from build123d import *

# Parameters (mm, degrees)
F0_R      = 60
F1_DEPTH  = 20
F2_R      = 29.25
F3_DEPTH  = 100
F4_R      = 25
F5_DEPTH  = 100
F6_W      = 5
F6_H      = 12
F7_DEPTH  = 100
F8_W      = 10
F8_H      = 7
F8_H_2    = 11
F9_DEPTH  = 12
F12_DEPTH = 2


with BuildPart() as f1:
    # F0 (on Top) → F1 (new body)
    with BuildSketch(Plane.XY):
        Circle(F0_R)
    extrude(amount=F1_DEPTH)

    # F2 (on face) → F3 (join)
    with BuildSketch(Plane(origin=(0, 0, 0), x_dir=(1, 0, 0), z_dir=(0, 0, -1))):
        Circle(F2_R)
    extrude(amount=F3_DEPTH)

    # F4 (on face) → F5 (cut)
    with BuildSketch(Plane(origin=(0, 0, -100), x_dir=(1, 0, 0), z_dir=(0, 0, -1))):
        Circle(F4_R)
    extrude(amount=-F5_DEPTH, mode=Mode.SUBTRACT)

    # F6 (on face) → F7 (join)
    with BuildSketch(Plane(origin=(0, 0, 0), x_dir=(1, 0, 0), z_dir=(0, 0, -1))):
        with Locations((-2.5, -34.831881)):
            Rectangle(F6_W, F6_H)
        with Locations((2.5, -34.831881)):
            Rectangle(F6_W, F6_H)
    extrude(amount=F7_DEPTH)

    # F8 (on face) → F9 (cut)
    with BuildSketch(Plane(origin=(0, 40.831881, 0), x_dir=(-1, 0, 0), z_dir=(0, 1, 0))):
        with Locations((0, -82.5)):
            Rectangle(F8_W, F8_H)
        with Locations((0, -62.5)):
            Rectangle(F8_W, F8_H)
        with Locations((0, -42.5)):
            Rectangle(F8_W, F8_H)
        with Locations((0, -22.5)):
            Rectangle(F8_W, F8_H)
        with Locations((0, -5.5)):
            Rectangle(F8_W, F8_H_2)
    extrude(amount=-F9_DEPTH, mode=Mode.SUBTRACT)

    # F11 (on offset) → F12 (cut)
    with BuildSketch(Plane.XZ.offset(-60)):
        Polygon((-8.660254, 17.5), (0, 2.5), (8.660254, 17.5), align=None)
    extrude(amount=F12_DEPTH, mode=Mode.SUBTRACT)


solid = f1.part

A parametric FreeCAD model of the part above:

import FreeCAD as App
import Part
import Sketcher
Q = App.Units.Quantity


def add_polygon(sketch, points):
    """Adds a closed chain of lines whose ends are joined by coincident constraints."""
    first, n = sketch.GeometryCount, len(points)
    for a, b in zip(points, points[1:] + points[:1]):
        sketch.addGeometry(Part.LineSegment(App.Vector(*a, 0), App.Vector(*b, 0)), False)
    for i in range(n):
        sketch.addConstraint(Sketcher.Constraint("Coincident", first + i, 2, first + (i + 1) % n, 1))

doc = App.newDocument("Part")
body = doc.addObject("PartDesign::Body", "Body")

# Sketch on XY plane
sketch1 = doc.addObject("Sketcher::SketchObject", "Sketch")
body.addObject(sketch1)
sketch1.AttachmentSupport = (doc.XY_Plane, [""])
sketch1.MapMode = "FlatFace"
sketch1.addGeometry(Part.Circle(App.Vector(0, 0, 0), App.Vector(0, 0, 1), 60), False)
sketch1.addConstraint([
    Sketcher.Constraint("Coincident", 0, 3, -1, 1),
    Sketcher.Constraint("Diameter", 0, Q("120 mm")),
])
pad1 = doc.addObject("PartDesign::Pad", "Pad")
body.addObject(pad1)
pad1.Profile = sketch1
pad1.Length = 20

# Sketch on XY plane
sketch2 = doc.addObject("Sketcher::SketchObject", "Sketch001")
body.addObject(sketch2)
sketch2.AttachmentSupport = (doc.XY_Plane, [""])
sketch2.MapMode = "FlatFace"
sketch2.addGeometry(Part.Circle(App.Vector(0, 0, 0), App.Vector(0, 0, 1), 29), False)
sketch2.addConstraint([
    Sketcher.Constraint("Coincident", 0, 3, -1, 1),
    Sketcher.Constraint("Diameter", 0, Q("58.5 mm")),
])
pad2 = doc.addObject("PartDesign::Pad", "Pad001")
body.addObject(pad2)
pad2.Profile = sketch2
pad2.Length = 100
pad2.Reversed = True

# Sketch on XY plane
sketch3 = doc.addObject("Sketcher::SketchObject", "Sketch002")
body.addObject(sketch3)
sketch3.AttachmentSupport = (doc.XY_Plane, [""])
sketch3.MapMode = "FlatFace"
sketch3.AttachmentOffset = App.Placement(App.Vector(0, 0, -100), App.Rotation())
sketch3.addGeometry(Part.Circle(App.Vector(0, 0, 0), App.Vector(0, 0, 1), 25), False)
sketch3.addConstraint([
    Sketcher.Constraint("Coincident", 0, 3, -1, 1),
    Sketcher.Constraint("Diameter", 0, Q("50 mm")),
])
pocket1 = doc.addObject("PartDesign::Pocket", "Pocket")
body.addObject(pocket1)
pocket1.Profile = sketch3
pocket1.Length = 100
pocket1.Reversed = True

# Sketch on XY plane
sketch4 = doc.addObject("Sketcher::SketchObject", "Sketch003")
body.addObject(sketch4)
sketch4.AttachmentSupport = (doc.XY_Plane, [""])
sketch4.MapMode = "FlatFace"
add_polygon(sketch4, [(-5, 29), (-5, 41), (5, 41), (5, 29)])  # lines 0-3
sketch4.addConstraint([
    Sketcher.Constraint("Vertical", 0),
    Sketcher.Constraint("Horizontal", 1),
    Sketcher.Constraint("Vertical", 2),
    Sketcher.Constraint("Horizontal", 3),
    Sketcher.Constraint("DistanceX", 1, 1, 1, 2, Q("10 mm")),
    Sketcher.Constraint("DistanceY", 0, 1, 0, 2, Q("12 mm")),
    Sketcher.Constraint("DistanceX", 0, 2, -1, 1, Q("5 mm")),
    Sketcher.Constraint("DistanceY", -1, 1, 0, 2, Q("40.831881 mm")),
])
pad3 = doc.addObject("PartDesign::Pad", "Pad002")
body.addObject(pad3)
pad3.Profile = sketch4
pad3.Length = 100
pad3.Reversed = True

# Sketch on XZ plane
sketch5 = doc.addObject("Sketcher::SketchObject", "Sketch004")
body.addObject(sketch5)
sketch5.AttachmentSupport = (doc.XZ_Plane, [""])
sketch5.MapMode = "FlatFace"
sketch5.AttachmentOffset = App.Placement(App.Vector(0, 0, -40.831881), App.Rotation())
add_polygon(sketch5, [(5, -79), (5, -86), (-5, -86), (-5, -79)])  # lines 0-3
add_polygon(sketch5, [(5, -59), (5, -66), (-5, -66), (-5, -59)])  # lines 4-7
add_polygon(sketch5, [(5, -39), (5, -46), (-5, -46), (-5, -39)])  # lines 8-11
add_polygon(sketch5, [(5, -19), (5, -26), (-5, -26), (-5, -19)])  # lines 12-15
add_polygon(sketch5, [(5, 0), (5, -11), (-5, -11), (-5, 0)])  # lines 16-19
sketch5.addConstraint([
    Sketcher.Constraint("Vertical", 0),
    Sketcher.Constraint("Horizontal", 1),
    Sketcher.Constraint("Vertical", 2),
    Sketcher.Constraint("Horizontal", 3),
    Sketcher.Constraint("Vertical", 4),
    Sketcher.Constraint("Horizontal", 5),
    Sketcher.Constraint("Vertical", 6),
    Sketcher.Constraint("Horizontal", 7),
    Sketcher.Constraint("Vertical", 8),
    Sketcher.Constraint("Horizontal", 9),
    Sketcher.Constraint("Vertical", 10),
    Sketcher.Constraint("Horizontal", 11),
    Sketcher.Constraint("Vertical", 12),
    Sketcher.Constraint("Horizontal", 13),
    Sketcher.Constraint("Vertical", 14),
    Sketcher.Constraint("Horizontal", 15),
    Sketcher.Constraint("Vertical", 16),
    Sketcher.Constraint("Horizontal", 17),
    Sketcher.Constraint("Vertical", 18),
    Sketcher.Constraint("Horizontal", 19),
    Sketcher.Constraint("Symmetric", 18, 2, 19, 2, -1, 1),
    Sketcher.Constraint("Vertical", 3, 2, 4, 2),
    Sketcher.Constraint("Vertical", 2, 2, 5, 2),
    Sketcher.Constraint("Vertical", 7, 2, 8, 2),
    Sketcher.Constraint("Vertical", 6, 2, 9, 2),
    Sketcher.Constraint("Vertical", 11, 2, 12, 2),
    Sketcher.Constraint("Vertical", 10, 2, 13, 2),
    Sketcher.Constraint("Vertical", 15, 2, 16, 2),
    Sketcher.Constraint("Vertical", 14, 2, 17, 2),
    Sketcher.Constraint("Equal", 2, 4),
    Sketcher.Constraint("Equal", 6, 8),
    Sketcher.Constraint("Equal", 10, 12),
    Sketcher.Constraint("DistanceX", 1, 2, 1, 1, Q("10 mm")),
    Sketcher.Constraint("DistanceY", 0, 2, 0, 1, Q("7 mm")),
    Sketcher.Constraint("DistanceY", 16, 2, 16, 1, Q("11 mm")),
    Sketcher.Constraint("DistanceY", 0, 2, -1, 1, Q("86 mm")),
    Sketcher.Constraint("DistanceY", 4, 2, -1, 1, Q("66 mm")),
    Sketcher.Constraint("DistanceY", 8, 2, -1, 1, Q("46 mm")),
    Sketcher.Constraint("DistanceY", 12, 2, -1, 1, Q("26 mm")),
])
pocket2 = doc.addObject("PartDesign::Pocket", "Pocket001")
body.addObject(pocket2)
pocket2.Profile = sketch5
pocket2.Length = 12
pocket2.Reversed = True

# Sketch on XZ plane
sketch6 = doc.addObject("Sketcher::SketchObject", "Sketch005")
body.addObject(sketch6)
sketch6.AttachmentSupport = (doc.XZ_Plane, [""])
sketch6.MapMode = "FlatFace"
sketch6.AttachmentOffset = App.Placement(App.Vector(0, 0, -60), App.Rotation())
add_polygon(sketch6, [(-9, 18), (0, 2), (9, 18)])  # lines 0-2
sketch6.addConstraint([
    Sketcher.Constraint("Horizontal", 2),
    Sketcher.Constraint("PointOnObject", 0, 2, -2),
    Sketcher.Constraint("Equal", 0, 1),
    Sketcher.Constraint("Angle", 0, Q("-60 deg")),
    Sketcher.Constraint("DistanceY", 0, 2, 1, 2, Q("15 mm")),
    Sketcher.Constraint("DistanceY", -1, 1, 0, 2, Q("2.5 mm")),
])
pocket3 = doc.addObject("PartDesign::Pocket", "Pocket002")
body.addObject(pocket3)
pocket3.Profile = sketch6
pocket3.Length = 2
pocket3.Reversed = True

doc.recompute()
